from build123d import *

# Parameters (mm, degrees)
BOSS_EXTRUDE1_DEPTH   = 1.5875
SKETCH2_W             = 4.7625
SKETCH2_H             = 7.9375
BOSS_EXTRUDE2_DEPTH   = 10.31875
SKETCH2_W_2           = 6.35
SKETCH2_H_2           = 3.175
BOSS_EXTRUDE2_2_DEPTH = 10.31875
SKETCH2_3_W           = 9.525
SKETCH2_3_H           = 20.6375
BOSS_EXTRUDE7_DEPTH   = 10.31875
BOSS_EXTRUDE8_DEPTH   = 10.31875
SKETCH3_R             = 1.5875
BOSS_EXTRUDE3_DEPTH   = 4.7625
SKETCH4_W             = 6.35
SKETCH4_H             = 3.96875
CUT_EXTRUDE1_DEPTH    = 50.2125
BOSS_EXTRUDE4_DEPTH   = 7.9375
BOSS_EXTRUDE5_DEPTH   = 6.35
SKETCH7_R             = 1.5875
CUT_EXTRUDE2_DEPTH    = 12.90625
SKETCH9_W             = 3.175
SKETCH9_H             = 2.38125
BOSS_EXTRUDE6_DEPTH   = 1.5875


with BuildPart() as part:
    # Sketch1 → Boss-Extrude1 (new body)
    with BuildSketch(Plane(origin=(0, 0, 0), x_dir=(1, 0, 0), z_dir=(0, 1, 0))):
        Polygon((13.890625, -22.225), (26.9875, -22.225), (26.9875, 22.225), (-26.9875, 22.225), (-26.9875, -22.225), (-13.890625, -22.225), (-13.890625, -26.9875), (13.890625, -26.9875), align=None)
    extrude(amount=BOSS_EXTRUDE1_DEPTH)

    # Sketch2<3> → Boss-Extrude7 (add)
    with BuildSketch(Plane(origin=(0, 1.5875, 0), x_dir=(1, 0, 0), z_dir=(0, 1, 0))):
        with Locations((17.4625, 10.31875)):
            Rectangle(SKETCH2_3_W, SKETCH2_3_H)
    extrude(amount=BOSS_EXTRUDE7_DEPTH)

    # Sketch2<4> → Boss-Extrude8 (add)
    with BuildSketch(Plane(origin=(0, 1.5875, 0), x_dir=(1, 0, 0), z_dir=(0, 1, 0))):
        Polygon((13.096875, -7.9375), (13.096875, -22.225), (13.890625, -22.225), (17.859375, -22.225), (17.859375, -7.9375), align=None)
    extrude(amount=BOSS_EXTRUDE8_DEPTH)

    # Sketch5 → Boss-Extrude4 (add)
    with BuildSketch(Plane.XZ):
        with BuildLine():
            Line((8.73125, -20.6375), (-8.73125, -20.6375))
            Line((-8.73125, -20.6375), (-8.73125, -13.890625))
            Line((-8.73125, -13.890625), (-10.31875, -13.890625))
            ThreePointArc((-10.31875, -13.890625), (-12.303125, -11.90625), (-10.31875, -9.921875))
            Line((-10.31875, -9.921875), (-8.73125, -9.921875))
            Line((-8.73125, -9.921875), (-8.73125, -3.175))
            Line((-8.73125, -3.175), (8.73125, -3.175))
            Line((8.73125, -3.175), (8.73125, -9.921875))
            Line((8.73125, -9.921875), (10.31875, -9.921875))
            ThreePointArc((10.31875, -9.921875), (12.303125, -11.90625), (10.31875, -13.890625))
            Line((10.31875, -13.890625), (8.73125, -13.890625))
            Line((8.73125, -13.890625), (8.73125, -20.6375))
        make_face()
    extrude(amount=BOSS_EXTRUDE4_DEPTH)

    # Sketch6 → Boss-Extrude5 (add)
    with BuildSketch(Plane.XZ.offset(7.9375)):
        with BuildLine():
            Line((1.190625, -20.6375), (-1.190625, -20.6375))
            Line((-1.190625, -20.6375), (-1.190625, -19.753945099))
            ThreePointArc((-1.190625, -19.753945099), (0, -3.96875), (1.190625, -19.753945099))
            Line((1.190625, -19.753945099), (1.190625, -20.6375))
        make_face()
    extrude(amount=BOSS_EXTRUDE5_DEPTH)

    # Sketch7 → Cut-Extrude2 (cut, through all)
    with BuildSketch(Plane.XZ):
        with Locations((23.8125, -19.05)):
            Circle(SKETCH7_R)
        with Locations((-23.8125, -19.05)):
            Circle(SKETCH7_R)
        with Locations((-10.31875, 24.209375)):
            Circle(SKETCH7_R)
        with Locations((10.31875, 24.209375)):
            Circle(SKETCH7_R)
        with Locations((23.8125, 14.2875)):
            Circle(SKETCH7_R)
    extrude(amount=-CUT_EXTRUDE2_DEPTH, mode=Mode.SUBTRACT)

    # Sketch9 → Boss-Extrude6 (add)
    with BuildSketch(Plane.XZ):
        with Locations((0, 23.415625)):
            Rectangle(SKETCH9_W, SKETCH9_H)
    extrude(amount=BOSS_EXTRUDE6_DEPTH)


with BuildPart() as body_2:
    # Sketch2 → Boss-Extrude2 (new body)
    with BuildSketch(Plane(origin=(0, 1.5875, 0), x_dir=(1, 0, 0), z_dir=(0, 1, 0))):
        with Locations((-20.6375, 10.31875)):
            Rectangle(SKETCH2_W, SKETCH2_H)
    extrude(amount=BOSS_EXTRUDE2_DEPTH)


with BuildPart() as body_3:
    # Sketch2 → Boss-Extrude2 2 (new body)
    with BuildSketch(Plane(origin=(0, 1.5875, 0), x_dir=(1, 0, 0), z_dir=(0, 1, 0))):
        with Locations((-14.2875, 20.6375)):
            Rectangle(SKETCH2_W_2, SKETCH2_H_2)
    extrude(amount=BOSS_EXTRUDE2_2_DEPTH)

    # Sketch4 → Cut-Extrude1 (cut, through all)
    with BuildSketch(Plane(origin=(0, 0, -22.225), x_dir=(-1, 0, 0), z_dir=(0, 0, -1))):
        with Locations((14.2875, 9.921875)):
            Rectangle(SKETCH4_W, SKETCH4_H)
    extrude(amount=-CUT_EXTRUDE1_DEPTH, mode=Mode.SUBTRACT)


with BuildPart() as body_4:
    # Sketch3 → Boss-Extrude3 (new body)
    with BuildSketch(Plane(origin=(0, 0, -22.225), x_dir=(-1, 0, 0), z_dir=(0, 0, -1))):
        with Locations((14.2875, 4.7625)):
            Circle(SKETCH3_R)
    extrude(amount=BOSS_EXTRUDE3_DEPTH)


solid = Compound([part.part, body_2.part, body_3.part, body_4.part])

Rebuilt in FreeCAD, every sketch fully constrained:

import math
import FreeCAD as App
import Part
import Sketcher
from FreeCAD import Vector
Q = App.Units.Quantity

doc = App.newDocument("Part")
body = doc.addObject("PartDesign::Body", "Body")

sketch1 = body.newObject("Sketcher::SketchObject", "Sketch")
sketch1.AttachmentSupport = (doc.getObject("XZ_Plane"), [""])
sketch1.MapMode = "FlatFace"
sketch1.addGeometry(Part.LineSegment(Vector(13.9, 22.2, 0), Vector(27, 22.2, 0)), False)
sketch1.addGeometry(Part.LineSegment(Vector(27, 22.2, 0), Vector(27, -22.2, 0)), False)
sketch1.addGeometry(Part.LineSegment(Vector(27, -22.2, 0), Vector(-27, -22.2, 0)), False)
sketch1.addGeometry(Part.LineSegment(Vector(-27, -22.2, 0), Vector(-27, 22.2, 0)), False)
sketch1.addGeometry(Part.LineSegment(Vector(-27, 22.2, 0), Vector(-13.9, 22.2, 0)), False)
sketch1.addGeometry(Part.LineSegment(Vector(-13.9, 22.2, 0), Vector(-13.9, 27, 0)), False)
sketch1.addGeometry(Part.LineSegment(Vector(-13.9, 27, 0), Vector(13.9, 27, 0)), False)
sketch1.addGeometry(Part.LineSegment(Vector(13.9, 27, 0), Vector(13.9, 22.2, 0)), False)
sketch1.addConstraint(Sketcher.Constraint("Coincident", 0, 2, 1, 1))
sketch1.addConstraint(Sketcher.Constraint("Coincident", 1, 2, 2, 1))
sketch1.addConstraint(Sketcher.Constraint("Coincident", 2, 2, 3, 1))
sketch1.addConstraint(Sketcher.Constraint("Coincident", 3, 2, 4, 1))
sketch1.addConstraint(Sketcher.Constraint("Coincident", 4, 2, 5, 1))
sketch1.addConstraint(Sketcher.Constraint("Coincident", 5, 2, 6, 1))
sketch1.addConstraint(Sketcher.Constraint("Coincident", 6, 2, 7, 1))
sketch1.addConstraint(Sketcher.Constraint("Coincident", 7, 2, 0, 1))
sketch1.addConstraint(Sketcher.Constraint("Horizontal", 0))
sketch1.addConstraint(Sketcher.Constraint("Vertical", 1))
sketch1.addConstraint(Sketcher.Constraint("Horizontal", 2))
sketch1.addConstraint(Sketcher.Constraint("Vertical", 3))
sketch1.addConstraint(Sketcher.Constraint("Horizontal", 4))
sketch1.addConstraint(Sketcher.Constraint("Vertical", 5))
sketch1.addConstraint(Sketcher.Constraint("Horizontal", 6))
sketch1.addConstraint(Sketcher.Constraint("Vertical", 7))
sketch1.addConstraint(Sketcher.Constraint("Symmetric", 0, 2, 2, 2, -1, 1))
sketch1.addConstraint(Sketcher.Constraint("Symmetric", 4, 2, 7, 2, -2))
sketch1.addConstraint(Sketcher.Constraint("DistanceY", 1, 2, 1, 1, Q("1.75 in")))
sketch1.addConstraint(Sketcher.Constraint("DistanceX", 0, 1, 0, 2, Q("0.515625 in")))
sketch1.addConstraint(Sketcher.Constraint("DistanceX", 2, 2, 2, 1, Q("2.125 in")))
sketch1.addConstraint(Sketcher.Constraint("DistanceY", 5, 1, 5, 2, Q("0.1875 in")))
pad1 = body.newObject("PartDesign::Pad", "Pad")
pad1.Profile = sketch1
pad1.Length = Q("0.0625 in")
pad1.Reversed = True

sketch2 = body.newObject("Sketcher::SketchObject", "Sketch001")
sketch2.AttachmentSupport = (doc.getObject("XZ_Plane"), [""])
sketch2.MapMode = "FlatFace"
sketch2.AttachmentOffset = App.Placement(Vector(0, 0, -0.0625 * 25.4), App.Rotation())
sketch2.addGeometry(Part.LineSegment(Vector(13, -21, 0), Vector(13, 0, 0)), False)
sketch2.addGeometry(Part.LineSegment(Vector(13, 0, 0), Vector(22, 0, 0)), False)
sketch2.addGeometry(Part.LineSegment(Vector(22, 0, 0), Vector(22, -21, 0)), False)
sketch2.addGeometry(Part.LineSegment(Vector(22, -21, 0), Vector(13, -21, 0)), False)
sketch2.addConstraint(Sketcher.Constraint("Coincident", 0, 2, 1, 1))
sketch2.addConstraint(Sketcher.Constraint("Coincident", 1, 2, 2, 1))
sketch2.addConstraint(Sketcher.Constraint("Coincident", 2, 2, 3, 1))
sketch2.addConstraint(Sketcher.Constraint("Coincident", 3, 2, 0, 1))
sketch2.addConstraint(Sketcher.Constraint("Vertical", 0))
sketch2.addConstraint(Sketcher.Constraint("Horizontal", 1))
sketch2.addConstraint(Sketcher.Constraint("Vertical", 2))
sketch2.addConstraint(Sketcher.Constraint("Horizontal", 3))
sketch2.addConstraint(Sketcher.Constraint("PointOnObject", 0, 2, -1))
sketch2.addConstraint(Sketcher.Constraint("DistanceX", -1, 1, 0, 2, Q("0.5 in")))
sketch2.addConstraint(Sketcher.Constraint("DistanceX", 1, 1, 1, 2, Q("0.375 in")))
sketch2.addConstraint(Sketcher.Constraint("DistanceY", 0, 1, 0, 2, Q("0.8125 in")))
pad2 = body.newObject("PartDesign::Pad", "Pad001")
pad2.Profile = sketch2
pad2.Length = Q("0.40625 in")
pad2.Reversed = True

sketch3 = body.newObject("Sketcher::SketchObject", "Sketch002")
sketch3.AttachmentSupport = (doc.getObject("XZ_Plane"), [""])
sketch3.MapMode = "FlatFace"
sketch3.AttachmentOffset = App.Placement(Vector(0, 0, -0.0625 * 25.4), App.Rotation())
sketch3.addGeometry(Part.LineSegment(Vector(13.1, 7.9, 0), Vector(13.1, 22.2, 0)), False)
sketch3.addGeometry(Part.LineSegment(Vector(13.1, 22.2, 0), Vector(17.9, 22.2, 0)), False)
sketch3.addGeometry(Part.LineSegment(Vector(17.9, 22.2, 0), Vector(17.9, 7.9, 0)), False)
sketch3.addGeometry(Part.LineSegment(Vector(17.9, 7.9, 0), Vector(13.1, 7.9, 0)), False)
sketch3.addConstraint(Sketcher.Constraint("Coincident", 0, 2, 1, 1))
sketch3.addConstraint(Sketcher.Constraint("Coincident", 1, 2, 2, 1))
sketch3.addConstraint(Sketcher.Constraint("Coincident", 2, 2, 3, 1))
sketch3.addConstraint(Sketcher.Constraint("Coincident", 3, 2, 0, 1))
sketch3.addConstraint(Sketcher.Constraint("Vertical", 0))
sketch3.addConstraint(Sketcher.Constraint("Horizontal", 1))
sketch3.addConstraint(Sketcher.Constraint("Vertical", 2))
sketch3.addConstraint(Sketcher.Constraint("Horizontal", 3))
sketch3.addConstraint(Sketcher.Constraint("DistanceX", 1, 1, 1, 2, Q("0.1875 in")))
sketch3.addConstraint(Sketcher.Constraint("DistanceY", 0, 1, 0, 2, Q("0.5625 in")))
sketch3.addConstraint(Sketcher.Constraint("DistanceX", -1, 1, 0, 2, Q("0.515625 in")))
sketch3.addConstraint(Sketcher.Constraint("DistanceY", -1, 1, 0, 2, Q("0.875 in")))
pad3 = body.newObject("PartDesign::Pad", "Pad002")
pad3.Profile = sketch3
pad3.Length = Q("0.40625 in")
pad3.Reversed = True

sketch4 = body.newObject("Sketcher::SketchObject", "Sketch003")
sketch4.AttachmentSupport = (doc.getObject("XZ_Plane"), [""])
sketch4.MapMode = "FlatFace"
sketch4.addGeometry(Part.LineSegment(Vector(-8.7, -20.6, 0), Vector(8.7, -20.6, 0)), False)
sketch4.addGeometry(Part.LineSegment(Vector(8.7, -20.6, 0), Vector(8.7, -13.9, 0)), False)
sketch4.addGeometry(Part.LineSegment(Vector(8.7, -13.9, 0), Vector(10.3, -13.9, 0)), False)
sketch4.addGeometry(Part.ArcOfCircle(Part.Circle(Vector(10.3, -11.9, 0), Vector(0, 0, 1), 2), math.radians(-90), math.radians(90)), False)
sketch4.addGeometry(Part.LineSegment(Vector(10.3, -9.9, 0), Vector(8.7, -9.9, 0)), False)
sketch4.addGeometry(Part.LineSegment(Vector(8.7, -9.9, 0), Vector(8.7, -3.2, 0)), False)
sketch4.addGeometry(Part.LineSegment(Vector(8.7, -3.2, 0), Vector(-8.7, -3.2, 0)), False)
sketch4.addGeometry(Part.LineSegment(Vector(-8.7, -3.2, 0), Vector(-8.7, -9.9, 0)), False)
sketch4.addGeometry(Part.LineSegment(Vector(-8.7, -9.9, 0), Vector(-10.3, -9.9, 0)), False)
sketch4.addGeometry(Part.ArcOfCircle(Part.Circle(Vector(-10.3, -11.9, 0), Vector(0, 0, 1), 2), math.radians(90), math.radians(270)), False)
sketch4.addGeometry(Part.LineSegment(Vector(-10.3, -13.9, 0), Vector(-8.7, -13.9, 0)), False)
sketch4.addGeometry(Part.LineSegment(Vector(-8.7, -13.9, 0), Vector(-8.7, -20.6, 0)), False)
sketch4.addConstraint(Sketcher.Constraint("Coincident", 0, 2, 1, 1))
sketch4.addConstraint(Sketcher.Constraint("Coincident", 1, 2, 2, 1))
sketch4.addConstraint(Sketcher.Constraint("Tangent", 2, 2, 3, 1))
sketch4.addConstraint(Sketcher.Constraint("Tangent", 3, 2, 4, 1))
sketch4.addConstraint(Sketcher.Constraint("Coincident", 4, 2, 5, 1))
sketch4.addConstraint(Sketcher.Constraint("Coincident", 5, 2, 6, 1))
sketch4.addConstraint(Sketcher.Constraint("Coincident", 6, 2, 7, 1))
sketch4.addConstraint(Sketcher.Constraint("Coincident", 7, 2, 8, 1))
sketch4.addConstraint(Sketcher.Constraint("Tangent", 8, 2, 9, 1))
sketch4.addConstraint(Sketcher.Constraint("Tangent", 9, 2, 10, 1))
sketch4.addConstraint(Sketcher.Constraint("Coincident", 10, 2, 11, 1))
sketch4.addConstraint(Sketcher.Constraint("Coincident", 11, 2, 0, 1))
sketch4.addConstraint(Sketcher.Constraint("Horizontal", 0))
sketch4.addConstraint(Sketcher.Constraint("Vertical", 1))
sketch4.addConstraint(Sketcher.Constraint("Horizontal", 2))
sketch4.addConstraint(Sketcher.Constraint("Horizontal", 4))
sketch4.addConstraint(Sketcher.Constraint("Vertical", 5))
sketch4.addConstraint(Sketcher.Constraint("Horizontal", 6))
sketch4.addConstraint(Sketcher.Constraint("Vertical", 7))
sketch4.addConstraint(Sketcher.Constraint("Horizontal", 8))
sketch4.addConstraint(Sketcher.Constraint("Horizontal", 10))
sketch4.addConstraint(Sketcher.Constraint("Vertical", 11))
sketch4.addConstraint(Sketcher.Constraint("Equal", 3, 9))
sketch4.addConstraint(Sketcher.Constraint("Symmetric", 3, 3, 9, 3, -2))
sketch4.addConstraint(Sketcher.Constraint("Vertical", 1, 2, 4, 2))
sketch4.addConstraint(Sketcher.Constraint("Vertical", 7, 2, 10, 2))
sketch4.addConstraint(Sketcher.Constraint("Equal", 4, 8))
sketch4.addConstraint(Sketcher.Constraint("Equal", 1, 5))
sketch4.addConstraint(Sketcher.Constraint("Radius", 3, Q("0.078125 in")))
sketch4.addConstraint(Sketcher.Constraint("DistanceX", 0, 1, 0, 2, Q("0.6875 in")))
sketch4.addConstraint(Sketcher.Constraint("DistanceX", 2, 1, 2, 2, Q("0.0625 in")))
sketch4.addConstraint(Sketcher.Constraint("DistanceY", 1, 1, 1, 2, Q("0.265625 in")))
sketch4.addConstraint(Sketcher.Constraint("DistanceY", 3, 3, -1, 1, Q("0.46875 in")))
pad4 = body.newObject("PartDesign::Pad", "Pad003")
pad4.Profile = sketch4
pad4.Length = Q("0.3125 in")

sketch5 = body.newObject("Sketcher::SketchObject", "Sketch004")
sketch5.AttachmentSupport = (doc.getObject("XZ_Plane"), [""])
sketch5.MapMode = "FlatFace"
sketch5.AttachmentOffset = App.Placement(Vector(0, 0, 0.3125 * 25.4), App.Rotation())
sketch5.addGeometry(Part.LineSegment(Vector(-1.2, -20.6, 0), Vector(1.2, -20.6, 0)), False)
sketch5.addGeometry(Part.LineSegment(Vector(1.2, -20.6, 0), Vector(1.2, -19.8, 0)), False)
sketch5.addGeometry(Part.ArcOfCircle(Part.Circle(Vector(0, -11.9, 0), Vector(0, 0, 1), 7.9), math.radians(-81), math.radians(261)), False)
sketch5.addGeometry(Part.LineSegment(Vector(-1.2, -19.8, 0), Vector(-1.2, -20.6, 0)), False)
sketch5.addConstraint(Sketcher.Constraint("Coincident", 0, 2, 1, 1))
sketch5.addConstraint(Sketcher.Constraint("Coincident", 1, 2, 2, 1))
sketch5.addConstraint(Sketcher.Constraint("Coincident", 2, 2, 3, 1))
sketch5.addConstraint(Sketcher.Constraint("Coincident", 3, 2, 0, 1))
sketch5.addConstraint(Sketcher.Constraint("Horizontal", 0))
sketch5.addConstraint(Sketcher.Constraint("Vertical", 1))
sketch5.addConstraint(Sketcher.Constraint("Vertical", 3))
sketch5.addConstraint(Sketcher.Constraint("Symmetric", 1, 2, 2, 2, -2))
sketch5.addConstraint(Sketcher.Constraint("Radius", 2, Q("0.3125 in")))
sketch5.addConstraint(Sketcher.Constraint("DistanceX", 0, 1, 0, 2, Q("0.09375 in")))
sketch5.addConstraint(Sketcher.Constraint("DistanceY", 2, 3, -1, 1, Q("0.46875 in")))
sketch5.addConstraint(Sketcher.Constraint("DistanceY", 0, 2, -1, 1, Q("0.8125 in")))
pad5 = body.newObject("PartDesign::Pad", "Pad004")
pad5.Profile = sketch5
pad5.Length = Q("0.25 in")

sketch6 = body.newObject("Sketcher::SketchObject", "Sketch005")
sketch6.AttachmentSupport = (doc.getObject("XZ_Plane"), [""])
sketch6.MapMode = "FlatFace"
sketch6.addGeometry(Part.Circle(Vector(23.8, -19.1, 0), Vector(0, 0, 1), 1.6), False)
sketch6.addGeometry(Part.Circle(Vector(-23.8, -19.1, 0), Vector(0, 0, 1), 1.6), False)
sketch6.addGeometry(Part.Circle(Vector(-10.3, 24.2, 0), Vector(0, 0, 1), 1.6), False)
sketch6.addGeometry(Part.Circle(Vector(10.3, 24.2, 0), Vector(0, 0, 1), 1.6), False)
sketch6.addGeometry(Part.Circle(Vector(23.8, 14.3, 0), Vector(0, 0, 1), 1.6), False)
sketch6.addConstraint(Sketcher.Constraint("Equal", 0, 1))
sketch6.addConstraint(Sketcher.Constraint("Equal", 1, 2))
sketch6.addConstraint(Sketcher.Constraint("Equal", 2, 3))
sketch6.addConstraint(Sketcher.Constraint("Equal", 3, 4))
sketch6.addConstraint(Sketcher.Constraint("Symmetric", 0, 3, 1, 3, -2))
sketch6.addConstraint(Sketcher.Constraint("Symmetric", 2, 3, 3, 3, -2))
sketch6.addConstraint(Sketcher.Constraint("Vertical", 0, 3, 4, 3))
sketch6.addConstraint(Sketcher.Constraint("Diameter", 0, Q("0.125 in")))
sketch6.addConstraint(Sketcher.Constraint("DistanceY", 0, 3, -1, 1, Q("0.75 in")))
sketch6.addConstraint(Sketcher.Constraint("DistanceX", -1, 1, 0, 3, Q("0.9375 in")))
sketch6.addConstraint(Sketcher.Constraint("DistanceX", 2, 3, -1, 1, Q("0.40625 in")))
sketch6.addConstraint(Sketcher.Constraint("DistanceY", -1, 1, 2, 3, Q("0.953125 in")))
sketch6.addConstraint(Sketcher.Constraint("DistanceY", -1, 1, 4, 3, Q("0.5625 in")))
pocket1 = body.newObject("PartDesign::Pocket", "Pocket")
pocket1.Profile = sketch6
pocket1.Type = "ThroughAll"

sketch7 = body.newObject("Sketcher::SketchObject", "Sketch006")
sketch7.AttachmentSupport = (doc.getObject("XZ_Plane"), [""])
sketch7.MapMode = "FlatFace"
sketch7.addGeometry(Part.LineSegment(Vector(-1.6, 24.6, 0), Vector(-1.6, 22.2, 0)), False)
sketch7.addGeometry(Part.LineSegment(Vector(-1.6, 22.2, 0), Vector(1.6, 22.2, 0)), False)
sketch7.addGeometry(Part.LineSegment(Vector(1.6, 22.2, 0), Vector(1.6, 24.6, 0)), False)
sketch7.addGeometry(Part.LineSegment(Vector(1.6, 24.6, 0), Vector(-1.6, 24.6, 0)), False)
sketch7.addConstraint(Sketcher.Constraint("Coincident", 0, 2, 1, 1))
sketch7.addConstraint(Sketcher.Constraint("Coincident", 1, 2, 2, 1))
sketch7.addConstraint(Sketcher.Constraint("Coincident", 2, 2, 3, 1))
sketch7.addConstraint(Sketcher.Constraint("Coincident", 3, 2, 0, 1))
sketch7.addConstraint(Sketcher.Constraint("Vertical", 0))
sketch7.addConstraint(Sketcher.Constraint("Horizontal", 1))
sketch7.addConstraint(Sketcher.Constraint("Vertical", 2))
sketch7.addConstraint(Sketcher.Constraint("Horizontal", 3))
sketch7.addConstraint(Sketcher.Constraint("DistanceX", 1, 1, 1, 2, Q("0.125 in")))
sketch7.addConstraint(Sketcher.Constraint("DistanceY", 0, 2, 0, 1, Q("0.09375 in")))
sketch7.addConstraint(Sketcher.Constraint("DistanceX", 0, 2, -1, 1, Q("0.0625 in")))
sketch7.addConstraint(Sketcher.Constraint("DistanceY", -1, 1, 0, 2, Q("0.875 in")))
pad6 = body.newObject("PartDesign::Pad", "Pad005")
pad6.Profile = sketch7
pad6.Length = Q("0.0625 in")
body2 = doc.addObject("PartDesign::Body", "Body001")

sketch8 = body2.newObject("Sketcher::SketchObject", "Sketch007")
sketch8.AttachmentSupport = (doc.getObject("XZ_Plane001"), [""])
sketch8.MapMode = "FlatFace"
sketch8.AttachmentOffset = App.Placement(Vector(0, 0, -0.0625 * 25.4), App.Rotation())
sketch8.addGeometry(Part.LineSegment(Vector(-23, -14.3, 0), Vector(-23, -6.3, 0)), False)
sketch8.addGeometry(Part.LineSegment(Vector(-23, -6.3, 0), Vector(-18.3, -6.3, 0)), False)
sketch8.addGeometry(Part.LineSegment(Vector(-18.3, -6.3, 0), Vector(-18.3, -14.3, 0)), False)
sketch8.addGeometry(Part.LineSegment(Vector(-18.3, -14.3, 0), Vector(-23, -14.3, 0)), False)
sketch8.addConstraint(Sketcher.Constraint("Coincident", 0, 2, 1, 1))
sketch8.addConstraint(Sketcher.Constraint("Coincident", 1, 2, 2, 1))
sketch8.addConstraint(Sketcher.Constraint("Coincident", 2, 2, 3, 1))
sketch8.addConstraint(Sketcher.Constraint("Coincident", 3, 2, 0, 1))
sketch8.addConstraint(Sketcher.Constraint("Vertical", 0))
sketch8.addConstraint(Sketcher.Constraint("Horizontal", 1))
sketch8.addConstraint(Sketcher.Constraint("Vertical", 2))
sketch8.addConstraint(Sketcher.Constraint("Horizontal", 3))
sketch8.addConstraint(Sketcher.Constraint("DistanceX", 1, 1, 1, 2, Q("0.1875 in")))
sketch8.addConstraint(Sketcher.Constraint("DistanceY", 0, 1, 0, 2, Q("0.3125 in")))
sketch8.addConstraint(Sketcher.Constraint("DistanceY", 0, 2, -1, 1, Q("0.25 in")))
sketch8.addConstraint(Sketcher.Constraint("DistanceX", 0, 2, -1, 1, Q("0.90625 in")))
pad7 = body2.newObject("PartDesign::Pad", "Pad006")
pad7.Profile = sketch8
pad7.Length = Q("0.40625 in")
pad7.Reversed = True
body3 = doc.addObject("PartDesign::Body", "Body002")

sketch9 = body3.newObject("Sketcher::SketchObject", "Sketch008")
sketch9.AttachmentSupport = (doc.getObject("XZ_Plane002"), [""])
sketch9.MapMode = "FlatFace"
sketch9.AttachmentOffset = App.Placement(Vector(0, 0, -0.0625 * 25.4), App.Rotation())
sketch9.addGeometry(Part.LineSegment(Vector(-17.5, -22.2, 0), Vector(-17.5, -19.1, 0)), False)
sketch9.addGeometry(Part.LineSegment(Vector(-17.5, -19.1, 0), Vector(-11.1, -19.1, 0)), False)
sketch9.addGeometry(Part.LineSegment(Vector(-11.1, -19.1, 0), Vector(-11.1, -22.2, 0)), False)
sketch9.addGeometry(Part.LineSegment(Vector(-11.1, -22.2, 0), Vector(-17.5, -22.2, 0)), False)
sketch9.addConstraint(Sketcher.Constraint("Coincident", 0, 2, 1, 1))
sketch9.addConstraint(Sketcher.Constraint("Coincident", 1, 2, 2, 1))
sketch9.addConstraint(Sketcher.Constraint("Coincident", 2, 2, 3, 1))
sketch9.addConstraint(Sketcher.Constraint("Coincident", 3, 2, 0, 1))
sketch9.addConstraint(Sketcher.Constraint("Vertical", 0))
sketch9.addConstraint(Sketcher.Constraint("Horizontal", 1))
sketch9.addConstraint(Sketcher.Constraint("Vertical", 2))
sketch9.addConstraint(Sketcher.Constraint("Horizontal", 3))
sketch9.addConstraint(Sketcher.Constraint("DistanceX", 1, 1, 1, 2, Q("0.25 in")))
sketch9.addConstraint(Sketcher.Constraint("DistanceY", 0, 1, 0, 2, Q("0.125 in")))
sketch9.addConstraint(Sketcher.Constraint("DistanceY", 0, 2, -1, 1, Q("0.75 in")))
sketch9.addConstraint(Sketcher.Constraint("DistanceX", 0, 2, -1, 1, Q("0.6875 in")))
pad8 = body3.newObject("PartDesign::Pad", "Pad007")
pad8.Profile = sketch9
pad8.Length = Q("0.40625 in")
pad8.Reversed = True

sketch10 = body3.newObject("Sketcher::SketchObject", "Sketch009")
sketch10.AttachmentSupport = (doc.getObject("XY_Plane002"), [""])
sketch10.MapMode = "FlatFace"
sketch10.AttachmentOffset = App.Placement(Vector(0, 0, -0.875 * 25.4), App.Rotation())
sketch10.addGeometry(Part.LineSegment(Vector(-11.1, 11.9, 0), Vector(-11.1, 7.9, 0)), False)
sketch10.addGeometry(Part.LineSegment(Vector(-11.1, 7.9, 0), Vector(-17.5, 7.9, 0)), False)
sketch10.addGeometry(Part.LineSegment(Vector(-17.5, 7.9, 0), Vector(-17.5, 11.9, 0)), False)
sketch10.addGeometry(Part.LineSegment(Vector(-17.5, 11.9, 0), Vector(-11.1, 11.9, 0)), False)
sketch10.addConstraint(Sketcher.Constraint("Coincident", 0, 2, 1, 1))
sketch10.addConstraint(Sketcher.Constraint("Coincident", 1, 2, 2, 1))
sketch10.addConstraint(Sketcher.Constraint("Coincident", 2, 2, 3, 1))
sketch10.addConstraint(Sketcher.Constraint("Coincident", 3, 2, 0, 1))
sketch10.addConstraint(Sketcher.Constraint("Vertical", 0))
sketch10.addConstraint(Sketcher.Constraint("Horizontal", 1))
sketch10.addConstraint(Sketcher.Constraint("Vertical", 2))
sketch10.addConstraint(Sketcher.Constraint("Horizontal", 3))
sketch10.addConstraint(Sketcher.Constraint("DistanceX", 1, 2, 1, 1, Q("0.25 in")))
sketch10.addConstraint(Sketcher.Constraint("DistanceY", 0, 2, 0, 1, Q("0.15625 in")))
sketch10.addConstraint(Sketcher.Constraint("DistanceX", 0, 2, -1, 1, Q("0.4375 in")))
sketch10.addConstraint(Sketcher.Constraint("DistanceY", -1, 1, 0, 2, Q("0.3125 in")))
pocket2 = body3.newObject("PartDesign::Pocket", "Pocket001")
pocket2.Profile = sketch10
pocket2.Type = "ThroughAll"
pocket2.Reversed = True
body4 = doc.addObject("PartDesign::Body", "Body003")

sketch11 = body4.newObject("Sketcher::SketchObject", "Sketch010")
sketch11.AttachmentSupport = (doc.getObject("XY_Plane003"), [""])
sketch11.MapMode = "FlatFace"
sketch11.AttachmentOffset = App.Placement(Vector(0, 0, -0.875 * 25.4), App.Rotation())
sketch11.addGeometry(Part.Circle(Vector(-14.3, 4.8, 0), Vector(0, 0, 1), 1.6), False)
sketch11.addConstraint(Sketcher.Constraint("Diameter", 0, Q("0.125 in")))
sketch11.addConstraint(Sketcher.Constraint("DistanceX", 0, 3, -1, 1, Q("0.5625 in")))
sketch11.addConstraint(Sketcher.Constraint("DistanceY", -1, 1, 0, 3, Q("0.1875 in")))
pad9 = body4.newObject("PartDesign::Pad", "Pad008")
pad9.Profile = sketch11
pad9.Length = Q("0.1875 in")
pad9.Reversed = True

doc.recompute()
